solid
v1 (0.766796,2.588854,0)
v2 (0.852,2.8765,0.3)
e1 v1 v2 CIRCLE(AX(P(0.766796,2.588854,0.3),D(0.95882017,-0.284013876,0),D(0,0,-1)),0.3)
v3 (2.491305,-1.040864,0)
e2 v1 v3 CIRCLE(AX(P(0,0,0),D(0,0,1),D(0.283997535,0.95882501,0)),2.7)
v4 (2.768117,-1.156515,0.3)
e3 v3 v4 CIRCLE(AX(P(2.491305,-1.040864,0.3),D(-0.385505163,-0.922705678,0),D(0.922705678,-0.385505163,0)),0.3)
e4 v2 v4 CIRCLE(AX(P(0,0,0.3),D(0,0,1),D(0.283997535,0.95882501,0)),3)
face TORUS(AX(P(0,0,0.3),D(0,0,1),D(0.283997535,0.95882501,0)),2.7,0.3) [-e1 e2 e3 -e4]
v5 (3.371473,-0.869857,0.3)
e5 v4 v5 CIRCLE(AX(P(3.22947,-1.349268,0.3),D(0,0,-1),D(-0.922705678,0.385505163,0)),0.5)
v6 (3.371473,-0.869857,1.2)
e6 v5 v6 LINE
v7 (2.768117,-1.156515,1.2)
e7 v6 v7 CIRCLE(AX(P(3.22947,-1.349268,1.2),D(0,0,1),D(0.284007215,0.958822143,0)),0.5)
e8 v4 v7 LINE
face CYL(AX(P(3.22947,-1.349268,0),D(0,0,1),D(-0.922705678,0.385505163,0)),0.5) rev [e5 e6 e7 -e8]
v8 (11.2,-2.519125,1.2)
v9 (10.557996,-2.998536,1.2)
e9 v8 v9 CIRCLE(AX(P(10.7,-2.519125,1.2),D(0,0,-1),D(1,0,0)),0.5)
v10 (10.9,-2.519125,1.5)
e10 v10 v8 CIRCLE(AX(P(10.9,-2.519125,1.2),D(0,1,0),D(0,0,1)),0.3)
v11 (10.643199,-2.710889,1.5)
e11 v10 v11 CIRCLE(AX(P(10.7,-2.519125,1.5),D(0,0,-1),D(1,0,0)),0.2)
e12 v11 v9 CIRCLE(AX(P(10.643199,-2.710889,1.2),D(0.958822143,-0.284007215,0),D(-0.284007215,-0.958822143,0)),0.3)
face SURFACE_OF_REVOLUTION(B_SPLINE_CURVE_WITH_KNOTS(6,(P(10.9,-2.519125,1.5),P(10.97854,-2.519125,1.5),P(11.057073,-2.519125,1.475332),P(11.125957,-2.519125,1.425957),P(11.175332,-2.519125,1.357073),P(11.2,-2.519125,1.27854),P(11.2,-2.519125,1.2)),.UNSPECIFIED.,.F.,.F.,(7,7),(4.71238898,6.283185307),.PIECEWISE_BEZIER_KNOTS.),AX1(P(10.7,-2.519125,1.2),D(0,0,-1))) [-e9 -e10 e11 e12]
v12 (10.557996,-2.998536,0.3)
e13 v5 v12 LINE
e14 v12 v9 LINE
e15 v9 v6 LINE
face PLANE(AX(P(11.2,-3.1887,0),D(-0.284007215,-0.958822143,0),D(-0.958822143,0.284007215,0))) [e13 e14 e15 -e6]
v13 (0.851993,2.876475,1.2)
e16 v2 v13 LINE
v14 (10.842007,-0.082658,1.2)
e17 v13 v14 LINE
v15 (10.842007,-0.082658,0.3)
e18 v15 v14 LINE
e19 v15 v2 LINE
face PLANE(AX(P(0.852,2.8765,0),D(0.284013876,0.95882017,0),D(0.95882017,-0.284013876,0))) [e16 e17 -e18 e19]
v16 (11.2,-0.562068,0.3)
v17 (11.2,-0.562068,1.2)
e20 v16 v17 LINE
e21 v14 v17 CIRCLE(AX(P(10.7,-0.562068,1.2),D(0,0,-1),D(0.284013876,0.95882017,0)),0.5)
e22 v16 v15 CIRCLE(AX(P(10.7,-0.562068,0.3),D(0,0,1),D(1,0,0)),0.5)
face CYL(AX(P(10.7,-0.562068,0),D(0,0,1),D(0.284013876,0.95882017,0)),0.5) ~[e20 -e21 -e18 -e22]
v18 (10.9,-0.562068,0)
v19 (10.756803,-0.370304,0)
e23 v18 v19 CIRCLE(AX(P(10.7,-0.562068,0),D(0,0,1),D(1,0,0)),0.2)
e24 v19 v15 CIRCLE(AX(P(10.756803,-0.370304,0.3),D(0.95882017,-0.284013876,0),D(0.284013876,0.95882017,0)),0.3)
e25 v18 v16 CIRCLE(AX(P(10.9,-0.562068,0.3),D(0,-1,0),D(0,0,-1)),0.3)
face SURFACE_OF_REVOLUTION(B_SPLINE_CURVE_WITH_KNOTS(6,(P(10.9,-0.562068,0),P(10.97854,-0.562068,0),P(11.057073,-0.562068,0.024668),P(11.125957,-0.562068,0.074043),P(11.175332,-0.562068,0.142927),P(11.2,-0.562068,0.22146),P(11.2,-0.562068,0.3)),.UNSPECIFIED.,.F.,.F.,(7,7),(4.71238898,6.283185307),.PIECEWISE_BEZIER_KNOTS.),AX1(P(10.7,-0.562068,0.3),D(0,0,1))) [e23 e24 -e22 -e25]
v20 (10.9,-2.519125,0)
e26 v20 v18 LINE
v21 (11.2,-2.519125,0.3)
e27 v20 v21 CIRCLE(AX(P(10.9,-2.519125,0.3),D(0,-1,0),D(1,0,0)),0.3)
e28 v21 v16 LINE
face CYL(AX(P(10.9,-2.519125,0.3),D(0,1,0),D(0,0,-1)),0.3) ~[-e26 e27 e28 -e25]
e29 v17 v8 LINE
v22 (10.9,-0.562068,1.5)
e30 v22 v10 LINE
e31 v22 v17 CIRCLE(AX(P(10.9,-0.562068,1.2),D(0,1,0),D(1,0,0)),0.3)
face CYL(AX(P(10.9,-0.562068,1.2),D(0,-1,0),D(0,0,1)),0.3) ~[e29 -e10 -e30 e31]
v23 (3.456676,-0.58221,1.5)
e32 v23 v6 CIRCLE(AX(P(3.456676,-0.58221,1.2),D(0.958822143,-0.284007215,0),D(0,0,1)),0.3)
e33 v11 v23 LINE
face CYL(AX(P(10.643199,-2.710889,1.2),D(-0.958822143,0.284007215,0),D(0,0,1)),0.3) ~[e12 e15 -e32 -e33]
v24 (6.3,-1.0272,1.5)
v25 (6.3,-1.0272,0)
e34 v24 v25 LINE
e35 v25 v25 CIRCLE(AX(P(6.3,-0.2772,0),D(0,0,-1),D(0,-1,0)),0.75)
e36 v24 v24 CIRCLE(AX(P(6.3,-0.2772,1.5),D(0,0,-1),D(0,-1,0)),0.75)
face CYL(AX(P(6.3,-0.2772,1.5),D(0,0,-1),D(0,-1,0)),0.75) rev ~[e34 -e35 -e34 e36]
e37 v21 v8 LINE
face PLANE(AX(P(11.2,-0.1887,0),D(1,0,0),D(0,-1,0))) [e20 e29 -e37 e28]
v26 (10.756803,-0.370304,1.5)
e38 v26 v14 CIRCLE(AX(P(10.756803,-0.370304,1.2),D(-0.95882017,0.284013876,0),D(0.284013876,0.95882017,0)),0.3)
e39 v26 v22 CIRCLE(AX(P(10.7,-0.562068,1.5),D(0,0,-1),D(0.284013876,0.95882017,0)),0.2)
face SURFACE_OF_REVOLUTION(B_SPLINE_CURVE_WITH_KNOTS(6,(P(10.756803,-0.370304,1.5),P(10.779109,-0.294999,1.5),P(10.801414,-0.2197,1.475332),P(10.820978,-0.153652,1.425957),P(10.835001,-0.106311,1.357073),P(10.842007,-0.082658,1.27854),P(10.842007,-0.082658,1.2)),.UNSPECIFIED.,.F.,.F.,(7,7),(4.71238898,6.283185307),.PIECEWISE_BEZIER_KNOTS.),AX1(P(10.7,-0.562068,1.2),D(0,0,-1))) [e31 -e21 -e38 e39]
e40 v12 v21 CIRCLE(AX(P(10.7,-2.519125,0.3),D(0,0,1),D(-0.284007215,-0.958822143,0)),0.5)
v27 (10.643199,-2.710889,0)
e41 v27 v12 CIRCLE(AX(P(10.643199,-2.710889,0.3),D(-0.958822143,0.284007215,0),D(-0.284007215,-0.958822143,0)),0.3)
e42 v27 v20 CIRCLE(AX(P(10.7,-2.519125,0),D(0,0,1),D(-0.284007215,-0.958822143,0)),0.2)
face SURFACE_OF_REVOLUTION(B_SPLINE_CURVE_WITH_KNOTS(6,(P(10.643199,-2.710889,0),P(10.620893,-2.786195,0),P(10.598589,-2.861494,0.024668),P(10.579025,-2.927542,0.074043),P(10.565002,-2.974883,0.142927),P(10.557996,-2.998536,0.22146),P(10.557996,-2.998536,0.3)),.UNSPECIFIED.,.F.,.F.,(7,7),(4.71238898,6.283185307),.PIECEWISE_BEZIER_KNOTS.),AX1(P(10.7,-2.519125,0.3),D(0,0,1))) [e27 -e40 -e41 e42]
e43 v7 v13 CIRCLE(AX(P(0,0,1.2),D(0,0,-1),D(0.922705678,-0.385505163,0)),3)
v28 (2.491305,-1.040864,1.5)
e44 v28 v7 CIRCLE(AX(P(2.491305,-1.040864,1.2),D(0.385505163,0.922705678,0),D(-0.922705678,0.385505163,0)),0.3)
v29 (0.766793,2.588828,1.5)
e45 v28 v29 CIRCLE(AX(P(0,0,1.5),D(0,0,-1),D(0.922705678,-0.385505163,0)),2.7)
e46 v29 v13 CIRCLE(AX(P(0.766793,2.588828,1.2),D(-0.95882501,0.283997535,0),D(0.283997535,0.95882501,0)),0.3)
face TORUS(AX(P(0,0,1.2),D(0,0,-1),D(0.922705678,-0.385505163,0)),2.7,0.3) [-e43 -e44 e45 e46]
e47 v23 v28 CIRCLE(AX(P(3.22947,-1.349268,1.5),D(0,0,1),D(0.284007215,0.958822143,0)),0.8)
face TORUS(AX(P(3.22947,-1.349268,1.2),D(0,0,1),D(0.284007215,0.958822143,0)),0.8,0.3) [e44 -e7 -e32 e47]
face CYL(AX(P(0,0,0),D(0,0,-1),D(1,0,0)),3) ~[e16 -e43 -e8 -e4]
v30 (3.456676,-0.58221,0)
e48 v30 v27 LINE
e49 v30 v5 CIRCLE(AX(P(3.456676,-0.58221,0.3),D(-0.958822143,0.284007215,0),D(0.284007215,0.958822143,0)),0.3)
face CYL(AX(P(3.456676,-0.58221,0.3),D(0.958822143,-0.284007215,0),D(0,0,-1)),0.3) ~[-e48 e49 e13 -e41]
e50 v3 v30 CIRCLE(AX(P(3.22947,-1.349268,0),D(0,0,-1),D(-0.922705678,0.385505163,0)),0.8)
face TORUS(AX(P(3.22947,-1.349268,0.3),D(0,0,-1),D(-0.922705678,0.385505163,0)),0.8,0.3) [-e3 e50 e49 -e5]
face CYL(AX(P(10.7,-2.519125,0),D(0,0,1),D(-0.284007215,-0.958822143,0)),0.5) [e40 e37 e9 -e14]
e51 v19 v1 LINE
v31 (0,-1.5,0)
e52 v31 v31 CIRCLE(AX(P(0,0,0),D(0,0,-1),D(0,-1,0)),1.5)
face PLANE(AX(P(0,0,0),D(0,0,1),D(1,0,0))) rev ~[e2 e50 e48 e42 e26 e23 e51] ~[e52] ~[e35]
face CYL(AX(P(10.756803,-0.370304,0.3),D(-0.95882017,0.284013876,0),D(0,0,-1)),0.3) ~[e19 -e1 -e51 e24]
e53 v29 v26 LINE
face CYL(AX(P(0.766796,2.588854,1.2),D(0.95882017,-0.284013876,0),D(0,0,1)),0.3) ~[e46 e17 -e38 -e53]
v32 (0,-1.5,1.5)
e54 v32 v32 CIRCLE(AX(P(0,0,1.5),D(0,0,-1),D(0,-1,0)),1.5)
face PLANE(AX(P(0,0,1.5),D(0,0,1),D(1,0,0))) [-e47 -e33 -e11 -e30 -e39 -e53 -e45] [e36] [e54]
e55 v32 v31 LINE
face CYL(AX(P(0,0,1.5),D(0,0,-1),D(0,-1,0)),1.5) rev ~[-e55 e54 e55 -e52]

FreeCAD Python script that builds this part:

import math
import FreeCAD as App
import Part
import Sketcher
Q = App.Units.Quantity


def edges_at(feature, points):
    """Names of the edges that pass closest to the given points."""
    edges = feature.Shape.Edges
    near = lambda p: min(range(len(edges)), key=lambda i: edges[i].distToShape(Part.Vertex(*p))[0])
    return sorted({f"Edge{near(p) + 1}" for p in points})

doc = App.newDocument("Part")
body = doc.addObject("PartDesign::Body", "Body")

# Sketch on XY plane
sketch1 = body.newObject("Sketcher::SketchObject", "Sketch")
sketch1.AttachmentSupport = (doc.getObject("XY_Plane"), [""])
sketch1.MapMode = "FlatFace"
sketch1.addGeometry([
    Part.ArcOfCircle(Part.Circle(App.Vector(0, 0, 0), App.Vector(0, 0, 1), 3), math.radians(74), math.radians(346)),
    Part.LineSegment(App.Vector(2.9, -0.7, 0), App.Vector(11.2, -3.2, 0)),
    Part.LineSegment(App.Vector(11.2, -3.2, 0), App.Vector(11.2, -0.2, 0)),
    Part.LineSegment(App.Vector(11.2, -0.2, 0), App.Vector(0.9, 2.9, 0)),
], False)
sketch1.addConstraint([
    Sketcher.Constraint("Coincident", 0, 2, 1, 1),
    Sketcher.Constraint("Coincident", 1, 2, 2, 1),
    Sketcher.Constraint("Coincident", 2, 2, 3, 1),
    Sketcher.Constraint("Tangent", 3, 2, 0, 1),
    Sketcher.Constraint("Vertical", 2),
    Sketcher.Constraint("Coincident", 0, 3, -1, 1),
    Sketcher.Constraint("Parallel", 1, 3),
    Sketcher.Constraint("Radius", 0, 3.0),
    Sketcher.Constraint("DistanceY", 2, 1, 2, 2, 3.0),
    Sketcher.Constraint("Angle", 1, Q("-16.4995 deg")),
    Sketcher.Constraint("DistanceX", -1, 1, 1, 2, 11.2),
])
pad1 = body.newObject("PartDesign::Pad", "Pad")
pad1.Profile = sketch1
pad1.Length = 1.5
doc.recompute()

fillet = body.newObject("PartDesign::Fillet", "Fillet")
fillet.Base = (pad1, edges_at(pad1, [(2.909, -0.733, 0.75), (11.2, -3.189, 0.75), (11.2, -0.189, 0.75)]))
fillet.Radius = 0.5

# Sketch on XY plane
sketch2 = body.newObject("Sketcher::SketchObject", "Sketch001")
sketch2.AttachmentSupport = (doc.getObject("XY_Plane"), [""])
sketch2.MapMode = "FlatFace"
sketch2.AttachmentOffset = App.Placement(App.Vector(0, 0, 1.5), App.Rotation())
sketch2.addGeometry(Part.Circle(App.Vector(6.3, -0.3, 0), App.Vector(0, 0, 1), 0.8), False)
sketch2.addConstraint([
    Sketcher.Constraint("Diameter", 0, 1.5),
    Sketcher.Constraint("DistanceX", -1, 1, 0, 3, 6.3),
    Sketcher.Constraint("DistanceY", 0, 3, -1, 1, 0.2772),
])
doc.recompute()
hole = body.newObject("PartDesign::Hole", "Hole")
hole.Profile = sketch2
hole.ThreadType = "None"
hole.Diameter = 1.5
hole.DepthType = "ThroughAll"

# Sketch on XY plane
sketch3 = body.newObject("Sketcher::SketchObject", "Sketch002")
sketch3.AttachmentSupport = (doc.getObject("XY_Plane"), [""])
sketch3.MapMode = "FlatFace"
sketch3.AttachmentOffset = App.Placement(App.Vector(0, 0, 1.5), App.Rotation())
sketch3.addGeometry(Part.Circle(App.Vector(0, 0, 0), App.Vector(0, 0, 1), 1.5), False)
sketch3.addConstraint([
    Sketcher.Constraint("Coincident", 0, 3, -1, 1),
    Sketcher.Constraint("Diameter", 0, 3.0),
])
doc.recompute()
hole2 = body.newObject("PartDesign::Hole", "Hole001")
hole2.Profile = sketch3
hole2.ThreadType = "None"
hole2.Diameter = 3
hole2.DepthType = "ThroughAll"
doc.recompute()

fillet2 = body.newObject("PartDesign::Fillet", "Fillet001")
fillet2.Base = (hole2, edges_at(hole2, [
    (11.101, -0.263, 1.5),
    (11.2, -1.541, 1.5),
    (10.999, -2.92, 1.5),
    (6.965, -1.934, 1.5),
    (3.015, -0.898, 1.5),
    (-2.71, -1.287, 1.5),
    (5.847, 1.397, 1.5),
    (10.999, -2.92, 0),
    (11.2, -1.541, 0),
    (11.101, -0.263, 0),
    (5.847, 1.397, 0),
    (-2.71, -1.287, 0),
    (3.015, -0.898, 0),
    (6.965, -1.934, 0),
]))
fillet2.Radius = 0.3

doc.recompute()
